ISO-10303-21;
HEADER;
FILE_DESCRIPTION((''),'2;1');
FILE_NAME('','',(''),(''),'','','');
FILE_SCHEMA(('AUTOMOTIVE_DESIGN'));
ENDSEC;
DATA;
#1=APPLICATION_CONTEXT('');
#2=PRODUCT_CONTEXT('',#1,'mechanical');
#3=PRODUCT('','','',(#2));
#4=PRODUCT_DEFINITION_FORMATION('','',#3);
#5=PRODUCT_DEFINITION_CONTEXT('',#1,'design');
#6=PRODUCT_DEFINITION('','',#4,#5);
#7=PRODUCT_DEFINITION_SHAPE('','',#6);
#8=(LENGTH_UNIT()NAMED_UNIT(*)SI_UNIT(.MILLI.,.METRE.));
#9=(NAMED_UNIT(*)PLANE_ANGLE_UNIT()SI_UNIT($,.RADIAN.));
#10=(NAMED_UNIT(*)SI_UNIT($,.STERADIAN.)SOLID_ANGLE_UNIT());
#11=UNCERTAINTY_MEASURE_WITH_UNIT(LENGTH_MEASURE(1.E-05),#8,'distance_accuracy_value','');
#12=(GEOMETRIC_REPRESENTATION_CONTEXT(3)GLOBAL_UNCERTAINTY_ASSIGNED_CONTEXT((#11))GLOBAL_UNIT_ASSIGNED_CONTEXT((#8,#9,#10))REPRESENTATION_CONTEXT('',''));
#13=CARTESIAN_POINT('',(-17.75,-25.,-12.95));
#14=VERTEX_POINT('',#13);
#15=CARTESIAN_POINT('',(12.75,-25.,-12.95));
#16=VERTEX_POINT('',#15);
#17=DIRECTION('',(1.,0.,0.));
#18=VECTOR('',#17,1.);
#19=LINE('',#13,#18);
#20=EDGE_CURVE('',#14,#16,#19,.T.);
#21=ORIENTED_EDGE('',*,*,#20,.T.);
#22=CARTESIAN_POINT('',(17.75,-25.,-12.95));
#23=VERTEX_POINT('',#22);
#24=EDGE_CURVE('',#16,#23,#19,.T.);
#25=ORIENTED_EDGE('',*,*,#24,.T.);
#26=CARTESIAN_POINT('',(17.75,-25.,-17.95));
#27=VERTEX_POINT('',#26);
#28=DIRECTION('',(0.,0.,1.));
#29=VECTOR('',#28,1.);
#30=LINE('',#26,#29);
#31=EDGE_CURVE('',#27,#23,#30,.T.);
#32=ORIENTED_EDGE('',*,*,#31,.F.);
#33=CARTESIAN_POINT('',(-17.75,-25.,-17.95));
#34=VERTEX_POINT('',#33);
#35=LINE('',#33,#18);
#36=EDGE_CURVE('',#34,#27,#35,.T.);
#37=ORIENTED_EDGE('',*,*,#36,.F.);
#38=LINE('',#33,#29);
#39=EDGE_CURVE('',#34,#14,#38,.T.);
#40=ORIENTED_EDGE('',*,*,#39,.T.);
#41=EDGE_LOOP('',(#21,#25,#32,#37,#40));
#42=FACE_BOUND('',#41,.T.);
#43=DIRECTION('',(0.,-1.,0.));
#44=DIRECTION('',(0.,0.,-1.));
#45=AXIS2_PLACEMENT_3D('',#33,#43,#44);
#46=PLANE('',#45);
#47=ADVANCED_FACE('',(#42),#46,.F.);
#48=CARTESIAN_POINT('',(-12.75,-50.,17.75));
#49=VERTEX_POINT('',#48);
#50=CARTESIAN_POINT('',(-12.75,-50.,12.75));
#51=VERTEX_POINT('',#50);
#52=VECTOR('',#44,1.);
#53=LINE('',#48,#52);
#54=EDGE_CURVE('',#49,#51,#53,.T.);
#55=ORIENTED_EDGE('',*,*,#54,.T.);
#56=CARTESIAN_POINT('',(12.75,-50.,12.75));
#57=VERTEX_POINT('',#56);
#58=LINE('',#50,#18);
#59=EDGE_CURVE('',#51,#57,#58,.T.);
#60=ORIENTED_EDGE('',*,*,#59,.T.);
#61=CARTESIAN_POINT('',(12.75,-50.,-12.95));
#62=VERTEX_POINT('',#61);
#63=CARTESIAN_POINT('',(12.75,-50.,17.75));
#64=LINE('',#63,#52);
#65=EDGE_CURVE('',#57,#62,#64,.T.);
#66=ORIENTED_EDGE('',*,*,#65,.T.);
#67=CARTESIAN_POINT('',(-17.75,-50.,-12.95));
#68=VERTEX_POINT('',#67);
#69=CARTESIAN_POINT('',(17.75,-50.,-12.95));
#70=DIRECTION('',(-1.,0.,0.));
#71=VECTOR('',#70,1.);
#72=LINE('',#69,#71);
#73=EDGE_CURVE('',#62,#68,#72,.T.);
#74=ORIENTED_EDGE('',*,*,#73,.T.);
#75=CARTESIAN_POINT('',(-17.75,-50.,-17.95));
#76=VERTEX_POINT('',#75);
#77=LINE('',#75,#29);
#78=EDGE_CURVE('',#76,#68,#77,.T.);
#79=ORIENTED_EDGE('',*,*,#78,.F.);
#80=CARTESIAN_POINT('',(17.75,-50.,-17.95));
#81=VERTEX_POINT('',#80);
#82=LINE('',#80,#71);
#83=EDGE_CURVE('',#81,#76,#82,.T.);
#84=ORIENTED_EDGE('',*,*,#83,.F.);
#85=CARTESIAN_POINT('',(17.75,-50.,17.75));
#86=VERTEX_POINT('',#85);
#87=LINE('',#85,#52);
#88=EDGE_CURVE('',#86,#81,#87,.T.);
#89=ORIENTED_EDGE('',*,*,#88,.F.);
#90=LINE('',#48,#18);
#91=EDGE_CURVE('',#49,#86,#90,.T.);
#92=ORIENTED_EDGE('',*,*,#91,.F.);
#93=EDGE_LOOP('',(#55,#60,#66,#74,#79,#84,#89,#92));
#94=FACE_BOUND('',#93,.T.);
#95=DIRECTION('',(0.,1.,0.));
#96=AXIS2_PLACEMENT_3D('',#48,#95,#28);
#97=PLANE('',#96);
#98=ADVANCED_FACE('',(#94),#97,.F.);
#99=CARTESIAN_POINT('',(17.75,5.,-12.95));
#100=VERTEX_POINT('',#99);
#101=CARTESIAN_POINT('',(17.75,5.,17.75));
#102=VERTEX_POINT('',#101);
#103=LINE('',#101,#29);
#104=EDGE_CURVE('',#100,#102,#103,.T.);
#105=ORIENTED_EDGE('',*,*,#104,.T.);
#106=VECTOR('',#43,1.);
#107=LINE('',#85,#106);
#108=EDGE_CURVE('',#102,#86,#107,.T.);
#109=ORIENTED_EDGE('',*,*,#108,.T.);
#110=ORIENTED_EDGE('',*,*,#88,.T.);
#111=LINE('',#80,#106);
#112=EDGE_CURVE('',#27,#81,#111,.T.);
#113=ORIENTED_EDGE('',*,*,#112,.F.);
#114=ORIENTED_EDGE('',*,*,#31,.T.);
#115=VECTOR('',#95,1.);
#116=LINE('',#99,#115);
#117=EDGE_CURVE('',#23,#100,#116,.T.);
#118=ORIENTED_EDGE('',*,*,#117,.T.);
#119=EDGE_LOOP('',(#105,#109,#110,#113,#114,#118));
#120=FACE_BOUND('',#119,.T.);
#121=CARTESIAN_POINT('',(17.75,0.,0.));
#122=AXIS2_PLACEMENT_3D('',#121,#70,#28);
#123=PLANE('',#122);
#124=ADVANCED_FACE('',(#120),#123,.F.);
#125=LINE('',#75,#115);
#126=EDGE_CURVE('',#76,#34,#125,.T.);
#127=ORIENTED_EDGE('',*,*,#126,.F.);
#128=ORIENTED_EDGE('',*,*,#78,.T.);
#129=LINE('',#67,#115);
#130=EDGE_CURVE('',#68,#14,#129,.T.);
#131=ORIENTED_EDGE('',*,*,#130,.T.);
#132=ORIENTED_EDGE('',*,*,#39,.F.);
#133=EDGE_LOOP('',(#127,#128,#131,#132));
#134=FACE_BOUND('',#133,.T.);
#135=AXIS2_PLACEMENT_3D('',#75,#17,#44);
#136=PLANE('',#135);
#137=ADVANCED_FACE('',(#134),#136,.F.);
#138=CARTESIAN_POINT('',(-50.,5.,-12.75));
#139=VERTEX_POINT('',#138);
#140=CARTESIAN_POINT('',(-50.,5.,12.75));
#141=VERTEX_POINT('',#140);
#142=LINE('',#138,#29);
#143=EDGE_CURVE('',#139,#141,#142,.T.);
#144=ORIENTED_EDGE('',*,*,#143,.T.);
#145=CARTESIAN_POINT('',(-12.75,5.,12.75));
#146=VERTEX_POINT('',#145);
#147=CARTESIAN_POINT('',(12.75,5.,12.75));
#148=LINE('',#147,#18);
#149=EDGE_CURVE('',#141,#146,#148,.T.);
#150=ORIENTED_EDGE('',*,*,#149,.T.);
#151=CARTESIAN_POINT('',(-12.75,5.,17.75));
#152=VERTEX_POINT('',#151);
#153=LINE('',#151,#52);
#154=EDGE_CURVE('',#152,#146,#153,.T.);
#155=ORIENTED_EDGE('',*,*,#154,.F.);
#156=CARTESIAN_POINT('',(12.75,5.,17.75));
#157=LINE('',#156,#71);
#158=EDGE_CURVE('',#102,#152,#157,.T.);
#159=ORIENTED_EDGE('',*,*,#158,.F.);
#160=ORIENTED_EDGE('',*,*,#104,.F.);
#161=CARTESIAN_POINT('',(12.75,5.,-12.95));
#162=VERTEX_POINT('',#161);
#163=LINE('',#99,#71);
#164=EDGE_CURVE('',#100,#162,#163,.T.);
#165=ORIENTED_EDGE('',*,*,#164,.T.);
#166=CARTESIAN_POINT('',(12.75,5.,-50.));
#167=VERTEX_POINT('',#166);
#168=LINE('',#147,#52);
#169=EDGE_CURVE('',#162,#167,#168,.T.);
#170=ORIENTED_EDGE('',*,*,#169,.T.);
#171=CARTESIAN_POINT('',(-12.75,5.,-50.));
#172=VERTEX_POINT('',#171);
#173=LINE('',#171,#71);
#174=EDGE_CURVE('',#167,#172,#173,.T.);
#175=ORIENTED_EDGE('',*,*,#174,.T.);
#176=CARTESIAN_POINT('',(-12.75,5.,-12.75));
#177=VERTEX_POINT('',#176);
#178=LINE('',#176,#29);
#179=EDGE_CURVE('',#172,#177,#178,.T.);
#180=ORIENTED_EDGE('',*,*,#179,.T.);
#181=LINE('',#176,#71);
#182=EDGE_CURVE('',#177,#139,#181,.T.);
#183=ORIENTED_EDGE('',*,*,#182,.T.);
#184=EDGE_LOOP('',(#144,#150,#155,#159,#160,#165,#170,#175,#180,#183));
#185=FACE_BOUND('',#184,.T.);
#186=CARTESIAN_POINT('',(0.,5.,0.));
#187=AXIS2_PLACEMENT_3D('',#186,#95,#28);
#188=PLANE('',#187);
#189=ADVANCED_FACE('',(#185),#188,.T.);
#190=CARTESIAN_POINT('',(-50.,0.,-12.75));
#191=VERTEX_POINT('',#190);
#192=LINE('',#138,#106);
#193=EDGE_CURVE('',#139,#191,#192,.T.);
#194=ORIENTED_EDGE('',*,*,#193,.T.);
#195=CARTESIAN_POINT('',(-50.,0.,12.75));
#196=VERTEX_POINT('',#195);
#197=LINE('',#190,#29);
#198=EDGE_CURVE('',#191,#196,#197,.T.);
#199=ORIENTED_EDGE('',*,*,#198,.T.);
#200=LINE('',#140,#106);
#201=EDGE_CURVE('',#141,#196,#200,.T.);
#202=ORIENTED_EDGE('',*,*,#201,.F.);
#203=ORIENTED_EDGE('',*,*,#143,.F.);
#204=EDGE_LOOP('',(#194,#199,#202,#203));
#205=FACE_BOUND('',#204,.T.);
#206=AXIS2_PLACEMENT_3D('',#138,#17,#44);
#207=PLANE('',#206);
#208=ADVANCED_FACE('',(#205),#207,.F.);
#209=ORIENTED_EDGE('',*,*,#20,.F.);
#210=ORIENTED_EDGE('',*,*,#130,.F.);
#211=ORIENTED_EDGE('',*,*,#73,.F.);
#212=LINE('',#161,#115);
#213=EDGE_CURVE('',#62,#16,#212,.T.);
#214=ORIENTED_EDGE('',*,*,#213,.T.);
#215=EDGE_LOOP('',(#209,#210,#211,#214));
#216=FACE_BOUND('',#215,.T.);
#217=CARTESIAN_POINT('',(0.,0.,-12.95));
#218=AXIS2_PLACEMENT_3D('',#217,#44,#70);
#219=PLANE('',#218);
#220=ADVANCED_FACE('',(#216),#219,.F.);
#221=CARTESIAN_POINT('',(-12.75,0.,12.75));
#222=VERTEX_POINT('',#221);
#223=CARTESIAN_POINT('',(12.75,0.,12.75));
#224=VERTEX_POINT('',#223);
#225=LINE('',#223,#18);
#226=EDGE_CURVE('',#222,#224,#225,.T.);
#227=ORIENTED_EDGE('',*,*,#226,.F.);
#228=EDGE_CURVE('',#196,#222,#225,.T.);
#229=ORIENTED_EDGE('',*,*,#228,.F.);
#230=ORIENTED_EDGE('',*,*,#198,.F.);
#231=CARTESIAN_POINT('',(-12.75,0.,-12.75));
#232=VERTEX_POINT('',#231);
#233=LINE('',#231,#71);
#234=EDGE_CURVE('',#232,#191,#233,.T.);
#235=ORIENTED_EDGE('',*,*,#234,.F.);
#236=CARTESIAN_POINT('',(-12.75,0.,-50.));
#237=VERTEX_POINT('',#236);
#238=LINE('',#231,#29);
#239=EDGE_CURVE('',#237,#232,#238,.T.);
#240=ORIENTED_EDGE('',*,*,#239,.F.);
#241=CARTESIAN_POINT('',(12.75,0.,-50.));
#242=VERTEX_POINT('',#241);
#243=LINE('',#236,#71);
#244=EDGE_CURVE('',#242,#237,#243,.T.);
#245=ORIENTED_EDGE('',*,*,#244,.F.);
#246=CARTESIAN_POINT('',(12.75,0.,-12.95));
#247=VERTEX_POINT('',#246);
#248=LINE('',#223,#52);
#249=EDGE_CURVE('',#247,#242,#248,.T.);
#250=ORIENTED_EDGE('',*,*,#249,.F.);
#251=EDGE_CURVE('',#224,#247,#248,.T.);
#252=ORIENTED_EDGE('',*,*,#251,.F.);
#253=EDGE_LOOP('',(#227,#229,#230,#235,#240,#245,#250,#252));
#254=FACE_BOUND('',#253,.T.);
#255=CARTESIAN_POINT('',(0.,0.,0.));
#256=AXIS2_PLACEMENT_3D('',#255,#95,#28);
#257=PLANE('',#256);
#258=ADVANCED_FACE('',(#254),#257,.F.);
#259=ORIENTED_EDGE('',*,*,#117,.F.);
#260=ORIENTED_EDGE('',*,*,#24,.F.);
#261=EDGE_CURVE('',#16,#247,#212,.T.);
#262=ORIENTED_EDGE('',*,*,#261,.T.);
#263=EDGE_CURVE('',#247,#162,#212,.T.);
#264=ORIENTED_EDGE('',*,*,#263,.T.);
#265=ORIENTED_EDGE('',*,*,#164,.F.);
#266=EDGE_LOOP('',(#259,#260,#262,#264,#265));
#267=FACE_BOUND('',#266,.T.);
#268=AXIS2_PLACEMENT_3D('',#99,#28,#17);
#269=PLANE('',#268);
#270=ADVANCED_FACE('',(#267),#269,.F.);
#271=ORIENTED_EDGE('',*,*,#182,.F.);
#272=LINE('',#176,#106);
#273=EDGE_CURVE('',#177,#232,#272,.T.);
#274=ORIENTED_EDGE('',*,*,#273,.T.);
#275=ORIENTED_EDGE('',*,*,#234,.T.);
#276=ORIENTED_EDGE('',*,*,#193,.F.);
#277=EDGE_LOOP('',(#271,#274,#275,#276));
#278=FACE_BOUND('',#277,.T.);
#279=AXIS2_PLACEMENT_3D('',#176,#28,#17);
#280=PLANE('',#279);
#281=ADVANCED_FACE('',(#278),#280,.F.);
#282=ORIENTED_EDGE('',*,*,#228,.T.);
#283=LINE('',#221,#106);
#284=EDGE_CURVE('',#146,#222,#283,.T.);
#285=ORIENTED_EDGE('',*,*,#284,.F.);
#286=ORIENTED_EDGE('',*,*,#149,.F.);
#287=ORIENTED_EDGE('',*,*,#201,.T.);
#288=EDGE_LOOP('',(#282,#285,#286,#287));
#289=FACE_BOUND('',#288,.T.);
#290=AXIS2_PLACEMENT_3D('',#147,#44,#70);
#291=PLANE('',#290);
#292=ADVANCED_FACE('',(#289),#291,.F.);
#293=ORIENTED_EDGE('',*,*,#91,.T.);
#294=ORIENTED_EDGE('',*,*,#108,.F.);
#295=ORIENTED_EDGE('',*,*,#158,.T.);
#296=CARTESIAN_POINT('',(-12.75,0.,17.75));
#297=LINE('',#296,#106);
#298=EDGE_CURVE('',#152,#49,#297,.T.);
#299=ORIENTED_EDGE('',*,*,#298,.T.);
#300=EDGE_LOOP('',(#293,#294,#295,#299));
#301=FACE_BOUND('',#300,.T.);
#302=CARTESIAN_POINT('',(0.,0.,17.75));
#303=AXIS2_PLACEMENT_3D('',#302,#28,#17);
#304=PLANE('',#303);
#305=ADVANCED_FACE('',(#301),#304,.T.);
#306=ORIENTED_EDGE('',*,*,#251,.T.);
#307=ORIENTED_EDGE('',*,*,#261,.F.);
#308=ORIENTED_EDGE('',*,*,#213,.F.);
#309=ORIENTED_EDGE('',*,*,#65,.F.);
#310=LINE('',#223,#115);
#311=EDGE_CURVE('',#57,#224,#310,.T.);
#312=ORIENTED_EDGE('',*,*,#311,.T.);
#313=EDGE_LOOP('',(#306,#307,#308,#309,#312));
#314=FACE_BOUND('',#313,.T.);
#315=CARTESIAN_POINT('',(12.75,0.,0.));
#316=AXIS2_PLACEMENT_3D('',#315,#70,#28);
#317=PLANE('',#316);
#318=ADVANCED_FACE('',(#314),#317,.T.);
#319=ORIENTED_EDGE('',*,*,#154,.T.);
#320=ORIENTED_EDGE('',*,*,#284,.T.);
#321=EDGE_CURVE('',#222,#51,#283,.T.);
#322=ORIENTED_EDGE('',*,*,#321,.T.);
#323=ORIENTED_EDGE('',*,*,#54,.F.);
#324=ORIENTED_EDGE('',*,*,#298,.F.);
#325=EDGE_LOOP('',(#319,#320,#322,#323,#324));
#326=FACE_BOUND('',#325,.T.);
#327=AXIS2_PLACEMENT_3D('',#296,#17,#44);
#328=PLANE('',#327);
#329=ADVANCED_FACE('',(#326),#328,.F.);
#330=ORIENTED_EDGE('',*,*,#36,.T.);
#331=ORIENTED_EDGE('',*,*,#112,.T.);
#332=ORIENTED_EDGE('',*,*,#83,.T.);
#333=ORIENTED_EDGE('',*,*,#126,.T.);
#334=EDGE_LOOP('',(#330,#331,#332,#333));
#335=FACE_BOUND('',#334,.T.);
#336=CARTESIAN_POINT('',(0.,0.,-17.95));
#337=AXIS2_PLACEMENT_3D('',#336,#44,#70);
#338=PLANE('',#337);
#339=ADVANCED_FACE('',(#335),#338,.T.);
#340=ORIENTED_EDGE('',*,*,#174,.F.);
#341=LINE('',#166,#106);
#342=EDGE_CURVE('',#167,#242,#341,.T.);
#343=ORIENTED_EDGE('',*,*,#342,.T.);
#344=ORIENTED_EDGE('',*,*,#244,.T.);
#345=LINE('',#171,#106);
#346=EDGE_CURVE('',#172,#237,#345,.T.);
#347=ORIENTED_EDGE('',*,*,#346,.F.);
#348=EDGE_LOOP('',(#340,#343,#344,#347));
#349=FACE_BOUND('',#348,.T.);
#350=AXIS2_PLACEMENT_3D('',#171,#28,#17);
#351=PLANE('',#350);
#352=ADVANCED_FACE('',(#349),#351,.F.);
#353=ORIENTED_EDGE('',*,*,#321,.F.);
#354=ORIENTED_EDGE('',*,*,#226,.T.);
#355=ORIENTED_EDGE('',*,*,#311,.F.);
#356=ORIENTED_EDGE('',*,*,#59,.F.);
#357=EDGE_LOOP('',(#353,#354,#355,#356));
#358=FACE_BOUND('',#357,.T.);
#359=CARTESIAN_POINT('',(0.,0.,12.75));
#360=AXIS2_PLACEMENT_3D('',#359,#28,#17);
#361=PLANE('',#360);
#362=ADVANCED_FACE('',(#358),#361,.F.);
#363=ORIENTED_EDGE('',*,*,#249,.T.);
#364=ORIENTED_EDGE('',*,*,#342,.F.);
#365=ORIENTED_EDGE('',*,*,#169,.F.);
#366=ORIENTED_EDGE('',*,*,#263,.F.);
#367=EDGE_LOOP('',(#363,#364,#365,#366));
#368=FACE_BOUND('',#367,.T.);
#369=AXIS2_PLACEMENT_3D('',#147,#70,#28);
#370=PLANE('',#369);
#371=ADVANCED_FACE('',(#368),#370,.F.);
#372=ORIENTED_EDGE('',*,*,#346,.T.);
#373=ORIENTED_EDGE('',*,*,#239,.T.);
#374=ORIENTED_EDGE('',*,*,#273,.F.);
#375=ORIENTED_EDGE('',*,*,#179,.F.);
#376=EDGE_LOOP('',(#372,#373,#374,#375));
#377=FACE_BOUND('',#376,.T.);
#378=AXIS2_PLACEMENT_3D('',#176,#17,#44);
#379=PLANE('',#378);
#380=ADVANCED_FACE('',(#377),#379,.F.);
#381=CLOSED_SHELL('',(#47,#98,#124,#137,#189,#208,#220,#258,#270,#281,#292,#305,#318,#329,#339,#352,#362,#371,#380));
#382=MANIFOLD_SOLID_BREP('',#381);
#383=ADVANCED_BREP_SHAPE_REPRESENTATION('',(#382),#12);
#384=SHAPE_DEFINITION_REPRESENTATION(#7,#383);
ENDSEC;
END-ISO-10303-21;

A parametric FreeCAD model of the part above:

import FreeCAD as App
import Part
import Sketcher
from FreeCAD import Vector
Q = App.Units.Quantity


def add_polygon(sketch, points):
    """Adds a closed chain of lines whose ends are joined by coincident constraints."""
    first, n = sketch.GeometryCount, len(points)
    for a, b in zip(points, points[1:] + points[:1]):
        sketch.addGeometry(Part.LineSegment(App.Vector(*a, 0), App.Vector(*b, 0)), False)
    for i in range(n):
        sketch.addConstraint(Sketcher.Constraint("Coincident", first + i, 2, first + (i + 1) % n, 1))

doc = App.newDocument("Part")
body = doc.addObject("PartDesign::Body", "Body")

sketch1 = body.newObject("Sketcher::SketchObject", "Sketch")
sketch1.AttachmentSupport = (doc.getObject("XZ_Plane"), [""])
sketch1.MapMode = "FlatFace"
add_polygon(sketch1, [(-13, -50), (-13, -13), (-50, -13), (-50, 13), (13, 13), (13, -50)])
sketch1.addConstraint([
    Sketcher.Constraint("Vertical", 0),
    Sketcher.Constraint("Horizontal", 1),
    Sketcher.Constraint("Vertical", 2),
    Sketcher.Constraint("Horizontal", 3),
    Sketcher.Constraint("Vertical", 4),
    Sketcher.Constraint("Horizontal", 5),
    Sketcher.Constraint("Symmetric", 0, 2, 3, 2, -1, 1),
    Sketcher.Constraint("Equal", 1, 0),
    Sketcher.Constraint("Equal", 5, 2),
    Sketcher.Constraint("DistanceX", 5, 2, 5, 1, Q("25.5 mm")),
    Sketcher.Constraint("DistanceX", 1, 2, -1, 1, Q("50 mm")),
])
pad1 = body.newObject("PartDesign::Pad", "Pad")
pad1.Profile = sketch1
pad1.Length = 5
pad1.Reversed = True

sketch2 = body.newObject("Sketcher::SketchObject", "Sketch001")
sketch2.AttachmentSupport = (doc.getObject("XY_Plane"), [""])
sketch2.MapMode = "FlatFace"
sketch2.AttachmentOffset = App.Placement(Vector(0, 0, 12.75), App.Rotation())
add_polygon(sketch2, [(13, -50), (13, 5), (-13, 5), (-13, -50)])
sketch2.addConstraint([
    Sketcher.Constraint("Vertical", 0),
    Sketcher.Constraint("Horizontal", 1),
    Sketcher.Constraint("Vertical", 2),
    Sketcher.Constraint("Horizontal", 3),
    Sketcher.Constraint("DistanceY", 0, 1, 0, 2, Q("55 mm")),
    Sketcher.Constraint("DistanceX", 1, 2, 1, 1, Q("25.5 mm")),
    Sketcher.Constraint("DistanceY", -1, 1, 0, 2, Q("5 mm")),
    Sketcher.Constraint("DistanceX", -1, 1, 0, 2, Q("12.75 mm")),
])
pad2 = body.newObject("PartDesign::Pad", "Pad001")
pad2.Profile = sketch2
pad2.Length = 5

sketch3 = body.newObject("Sketcher::SketchObject", "Sketch002")
sketch3.AttachmentSupport = (doc.getObject("YZ_Plane"), [""])
sketch3.MapMode = "FlatFace"
sketch3.AttachmentOffset = App.Placement(Vector(0, 0, 12.75), App.Rotation())
add_polygon(sketch3, [(5, 18), (-50, 18), (-50, -13), (5, -13)])
sketch3.addConstraint([
    Sketcher.Constraint("Horizontal", 0),
    Sketcher.Constraint("Vertical", 1),
    Sketcher.Constraint("Horizontal", 2),
    Sketcher.Constraint("Vertical", 3),
    Sketcher.Constraint("DistanceX", 0, 2, 0, 1, Q("55 mm")),
    Sketcher.Constraint("DistanceY", 1, 2, 1, 1, Q("30.7 mm")),
    Sketcher.Constraint("DistanceX", 0, 2, -1, 1, Q("50 mm")),
    Sketcher.Constraint("DistanceY", -1, 1, 0, 2, Q("17.75 mm")),
])
pad3 = body.newObject("PartDesign::Pad", "Pad002")
pad3.Profile = sketch3
pad3.Length = 5

sketch4 = body.newObject("Sketcher::SketchObject", "Sketch003")
sketch4.AttachmentSupport = (doc.getObject("XY_Plane"), [""])
sketch4.MapMode = "FlatFace"
sketch4.AttachmentOffset = App.Placement(Vector(0, 0, -12.95), App.Rotation())
add_polygon(sketch4, [(18, -25), (18, -50), (-18, -50), (-18, -25)])
sketch4.addConstraint([
    Sketcher.Constraint("Vertical", 0),
    Sketcher.Constraint("Horizontal", 1),
    Sketcher.Constraint("Vertical", 2),
    Sketcher.Constraint("Horizontal", 3),
    Sketcher.Constraint("DistanceY", 0, 2, 0, 1, Q("25 mm")),
    Sketcher.Constraint("DistanceX", 1, 2, 1, 1, Q("35.5 mm")),
    Sketcher.Constraint("DistanceY", 0, 2, -1, 1, Q("50 mm")),
    Sketcher.Constraint("DistanceX", -1, 1, 0, 2, Q("17.75 mm")),
])
pad4 = body.newObject("PartDesign::Pad", "Pad003")
pad4.Profile = sketch4
pad4.Length = 5
pad4.Reversed = True

doc.recompute()
